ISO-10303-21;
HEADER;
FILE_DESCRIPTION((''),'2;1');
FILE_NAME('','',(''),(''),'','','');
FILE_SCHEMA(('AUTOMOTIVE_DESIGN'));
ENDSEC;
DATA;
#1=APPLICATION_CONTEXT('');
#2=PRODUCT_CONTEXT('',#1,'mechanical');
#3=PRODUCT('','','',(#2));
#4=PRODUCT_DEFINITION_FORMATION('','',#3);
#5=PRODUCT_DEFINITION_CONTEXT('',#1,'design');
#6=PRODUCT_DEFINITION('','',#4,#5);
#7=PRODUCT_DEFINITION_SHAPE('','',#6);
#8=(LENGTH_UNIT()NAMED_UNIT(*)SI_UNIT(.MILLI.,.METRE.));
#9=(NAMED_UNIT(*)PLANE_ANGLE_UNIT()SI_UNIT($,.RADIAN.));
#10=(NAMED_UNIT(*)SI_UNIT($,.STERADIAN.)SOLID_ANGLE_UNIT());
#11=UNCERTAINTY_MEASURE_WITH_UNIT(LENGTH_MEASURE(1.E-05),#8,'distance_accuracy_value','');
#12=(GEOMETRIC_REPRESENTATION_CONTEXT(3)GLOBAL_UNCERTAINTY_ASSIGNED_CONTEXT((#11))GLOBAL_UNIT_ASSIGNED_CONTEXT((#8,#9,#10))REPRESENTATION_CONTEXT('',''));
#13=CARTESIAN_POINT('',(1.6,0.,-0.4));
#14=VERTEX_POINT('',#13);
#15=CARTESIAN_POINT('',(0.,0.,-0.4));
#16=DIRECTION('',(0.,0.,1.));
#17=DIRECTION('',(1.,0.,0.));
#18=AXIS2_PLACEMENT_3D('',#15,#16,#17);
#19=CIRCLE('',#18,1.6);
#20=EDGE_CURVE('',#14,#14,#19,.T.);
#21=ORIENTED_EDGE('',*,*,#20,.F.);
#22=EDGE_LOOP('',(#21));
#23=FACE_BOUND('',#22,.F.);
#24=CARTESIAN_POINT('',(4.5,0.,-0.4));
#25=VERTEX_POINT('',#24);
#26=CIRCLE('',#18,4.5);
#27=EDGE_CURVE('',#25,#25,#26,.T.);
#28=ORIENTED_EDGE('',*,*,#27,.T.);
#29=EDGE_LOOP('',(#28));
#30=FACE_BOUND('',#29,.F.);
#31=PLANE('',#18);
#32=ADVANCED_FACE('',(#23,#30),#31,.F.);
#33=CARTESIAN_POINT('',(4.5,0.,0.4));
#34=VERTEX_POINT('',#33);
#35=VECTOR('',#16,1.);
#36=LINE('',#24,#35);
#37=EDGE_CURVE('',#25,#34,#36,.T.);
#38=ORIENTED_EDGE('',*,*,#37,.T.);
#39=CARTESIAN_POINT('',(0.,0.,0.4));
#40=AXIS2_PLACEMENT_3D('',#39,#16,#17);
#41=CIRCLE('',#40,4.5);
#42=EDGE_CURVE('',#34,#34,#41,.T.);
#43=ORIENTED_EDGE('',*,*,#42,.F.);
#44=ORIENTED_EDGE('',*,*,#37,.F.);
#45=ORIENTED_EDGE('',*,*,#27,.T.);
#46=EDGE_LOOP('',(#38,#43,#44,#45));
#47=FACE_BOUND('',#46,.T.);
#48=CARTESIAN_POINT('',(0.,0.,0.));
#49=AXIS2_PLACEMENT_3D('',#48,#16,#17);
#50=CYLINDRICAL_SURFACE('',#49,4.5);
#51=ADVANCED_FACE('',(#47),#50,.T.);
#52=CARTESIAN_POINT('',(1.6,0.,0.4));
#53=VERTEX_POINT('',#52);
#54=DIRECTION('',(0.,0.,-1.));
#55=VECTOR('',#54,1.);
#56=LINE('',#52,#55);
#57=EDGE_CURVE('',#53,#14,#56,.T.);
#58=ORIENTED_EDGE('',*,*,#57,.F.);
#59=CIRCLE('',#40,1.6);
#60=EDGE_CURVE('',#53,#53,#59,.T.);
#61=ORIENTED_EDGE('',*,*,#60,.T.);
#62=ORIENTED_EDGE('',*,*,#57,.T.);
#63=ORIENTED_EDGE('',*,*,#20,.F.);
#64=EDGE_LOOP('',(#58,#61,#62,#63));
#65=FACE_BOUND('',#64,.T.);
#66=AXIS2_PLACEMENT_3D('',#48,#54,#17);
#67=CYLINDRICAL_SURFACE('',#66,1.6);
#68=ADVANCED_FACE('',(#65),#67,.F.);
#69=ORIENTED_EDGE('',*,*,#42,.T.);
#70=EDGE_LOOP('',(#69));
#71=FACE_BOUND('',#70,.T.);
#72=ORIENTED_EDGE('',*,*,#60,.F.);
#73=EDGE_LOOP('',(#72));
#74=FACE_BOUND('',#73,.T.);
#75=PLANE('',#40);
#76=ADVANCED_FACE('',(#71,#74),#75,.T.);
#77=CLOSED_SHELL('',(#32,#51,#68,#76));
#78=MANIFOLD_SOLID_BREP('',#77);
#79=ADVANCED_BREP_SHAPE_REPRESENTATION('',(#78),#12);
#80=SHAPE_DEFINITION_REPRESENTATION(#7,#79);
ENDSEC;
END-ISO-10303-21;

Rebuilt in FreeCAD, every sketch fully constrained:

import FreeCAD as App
import Part
import Sketcher
from FreeCAD import Vector

doc = App.newDocument("Part")
body = doc.addObject("PartDesign::Body", "Body")

# Sketch on XY plane
sketch1 = doc.addObject("Sketcher::SketchObject", "Sketch")
body.addObject(sketch1)
sketch1.AttachmentSupport = (doc.XY_Plane, [""])
sketch1.MapMode = "FlatFace"
sketch1.addGeometry(Part.Circle(Vector(0, 0, 0), Vector(0, 0, 1), 4.5), False)
sketch1.addGeometry(Part.Circle(Vector(0, 0, 0), Vector(0, 0, 1), 1.6), False)
sketch1.addConstraint(Sketcher.Constraint("Coincident", 0, 3, -1, 1))
sketch1.addConstraint(Sketcher.Constraint("Coincident", 1, 3, -1, 1))
sketch1.addConstraint(Sketcher.Constraint("Diameter", 0, 9.0))
sketch1.addConstraint(Sketcher.Constraint("Diameter", 1, 3.2))
pad1 = doc.addObject("PartDesign::Pad", "Pad")
body.addObject(pad1)
pad1.Profile = sketch1
pad1.Length = 0.8
pad1.Midplane = True

doc.recompute()
